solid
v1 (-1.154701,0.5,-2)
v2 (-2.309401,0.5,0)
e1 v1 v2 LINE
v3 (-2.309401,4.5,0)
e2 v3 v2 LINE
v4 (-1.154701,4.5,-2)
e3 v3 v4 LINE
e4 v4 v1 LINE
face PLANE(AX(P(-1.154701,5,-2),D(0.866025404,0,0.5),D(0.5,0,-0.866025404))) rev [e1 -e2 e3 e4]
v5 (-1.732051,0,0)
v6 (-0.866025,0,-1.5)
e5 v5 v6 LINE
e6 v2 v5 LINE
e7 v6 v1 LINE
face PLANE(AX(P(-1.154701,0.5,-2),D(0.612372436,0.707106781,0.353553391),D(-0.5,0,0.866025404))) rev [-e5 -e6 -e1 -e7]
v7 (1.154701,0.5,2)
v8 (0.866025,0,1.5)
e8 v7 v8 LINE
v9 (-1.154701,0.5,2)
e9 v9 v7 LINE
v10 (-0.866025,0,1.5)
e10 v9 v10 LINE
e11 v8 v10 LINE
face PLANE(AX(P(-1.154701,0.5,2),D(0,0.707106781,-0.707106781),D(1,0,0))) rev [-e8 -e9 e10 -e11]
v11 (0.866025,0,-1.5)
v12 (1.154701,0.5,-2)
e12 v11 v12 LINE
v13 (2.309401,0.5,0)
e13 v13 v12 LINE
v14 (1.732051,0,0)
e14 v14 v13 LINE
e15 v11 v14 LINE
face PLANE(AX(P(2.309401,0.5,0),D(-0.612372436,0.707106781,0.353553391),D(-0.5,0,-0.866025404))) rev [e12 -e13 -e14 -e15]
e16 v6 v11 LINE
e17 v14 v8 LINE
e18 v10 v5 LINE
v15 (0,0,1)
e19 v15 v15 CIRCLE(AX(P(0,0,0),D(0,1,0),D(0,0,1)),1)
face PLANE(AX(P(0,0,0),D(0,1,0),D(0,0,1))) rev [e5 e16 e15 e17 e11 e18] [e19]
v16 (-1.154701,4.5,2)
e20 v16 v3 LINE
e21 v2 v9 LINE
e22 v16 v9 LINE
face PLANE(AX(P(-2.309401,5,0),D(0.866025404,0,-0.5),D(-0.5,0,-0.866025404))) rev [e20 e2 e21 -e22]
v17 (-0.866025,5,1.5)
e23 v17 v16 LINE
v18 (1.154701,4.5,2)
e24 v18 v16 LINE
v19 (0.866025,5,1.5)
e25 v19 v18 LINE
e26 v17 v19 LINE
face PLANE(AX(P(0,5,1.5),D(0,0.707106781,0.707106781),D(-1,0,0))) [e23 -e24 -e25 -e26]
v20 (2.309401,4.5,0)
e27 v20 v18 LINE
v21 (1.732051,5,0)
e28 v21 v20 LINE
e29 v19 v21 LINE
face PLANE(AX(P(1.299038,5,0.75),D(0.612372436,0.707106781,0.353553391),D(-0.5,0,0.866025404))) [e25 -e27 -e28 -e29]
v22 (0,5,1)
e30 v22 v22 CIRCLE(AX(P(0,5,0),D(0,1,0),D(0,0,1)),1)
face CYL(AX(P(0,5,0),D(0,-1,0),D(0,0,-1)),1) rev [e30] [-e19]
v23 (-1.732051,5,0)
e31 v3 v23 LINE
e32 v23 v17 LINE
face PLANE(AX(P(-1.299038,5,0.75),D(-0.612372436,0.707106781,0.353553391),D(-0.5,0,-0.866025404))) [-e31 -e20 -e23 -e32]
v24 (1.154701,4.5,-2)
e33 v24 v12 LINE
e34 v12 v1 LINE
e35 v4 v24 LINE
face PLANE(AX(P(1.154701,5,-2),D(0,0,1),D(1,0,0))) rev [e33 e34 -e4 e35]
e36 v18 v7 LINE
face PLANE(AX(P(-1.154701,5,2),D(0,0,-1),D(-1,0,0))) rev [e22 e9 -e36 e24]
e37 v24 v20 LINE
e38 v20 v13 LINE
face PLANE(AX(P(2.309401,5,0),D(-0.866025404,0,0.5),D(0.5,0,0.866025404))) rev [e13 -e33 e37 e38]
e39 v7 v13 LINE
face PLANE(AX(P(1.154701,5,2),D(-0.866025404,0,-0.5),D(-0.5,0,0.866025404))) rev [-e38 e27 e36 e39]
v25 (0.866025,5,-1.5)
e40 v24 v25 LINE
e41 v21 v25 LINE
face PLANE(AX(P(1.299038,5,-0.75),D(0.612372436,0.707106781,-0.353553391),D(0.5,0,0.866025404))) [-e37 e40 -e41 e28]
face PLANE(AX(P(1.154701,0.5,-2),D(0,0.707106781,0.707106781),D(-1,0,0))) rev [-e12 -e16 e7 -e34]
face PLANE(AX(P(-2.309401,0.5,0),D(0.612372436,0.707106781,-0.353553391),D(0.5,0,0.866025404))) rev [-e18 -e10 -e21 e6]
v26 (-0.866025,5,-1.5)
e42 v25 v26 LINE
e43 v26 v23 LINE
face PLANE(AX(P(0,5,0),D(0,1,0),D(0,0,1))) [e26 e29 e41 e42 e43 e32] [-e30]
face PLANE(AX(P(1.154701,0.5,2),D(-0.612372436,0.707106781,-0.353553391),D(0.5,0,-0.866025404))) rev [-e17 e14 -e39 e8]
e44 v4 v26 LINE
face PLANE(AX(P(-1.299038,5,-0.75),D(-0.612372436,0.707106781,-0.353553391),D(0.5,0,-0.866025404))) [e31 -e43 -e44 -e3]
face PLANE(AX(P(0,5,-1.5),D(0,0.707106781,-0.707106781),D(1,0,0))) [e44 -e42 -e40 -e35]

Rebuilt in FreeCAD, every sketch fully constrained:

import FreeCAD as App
import Part
import Sketcher

V = App.Vector
Q = App.Units.Quantity


def edges_at(feature, points):
    """Names of the edges that pass closest to the given points."""
    edges = feature.Shape.Edges
    near = lambda p: min(range(len(edges)), key=lambda i: edges[i].distToShape(Part.Vertex(*p))[0])
    return sorted({f"Edge{near(p) + 1}" for p in points})


def add_polygon(sketch, points):
    """Adds a closed chain of lines whose ends are joined by coincident constraints."""
    first, n = sketch.GeometryCount, len(points)
    for a, b in zip(points, points[1:] + points[:1]):
        sketch.addGeometry(Part.LineSegment(App.Vector(*a, 0), App.Vector(*b, 0)), False)
    for i in range(n):
        sketch.addConstraint(Sketcher.Constraint("Coincident", first + i, 2, first + (i + 1) % n, 1))

doc = App.newDocument("Part")
body = doc.addObject("PartDesign::Body", "Body")

sketch1 = body.newObject("Sketcher::SketchObject", "Sketch")
sketch1.AttachmentSupport = (doc.getObject("XZ_Plane"), [""])
sketch1.MapMode = "FlatFace"
add_polygon(sketch1, [(-2.3, 0), (-1.2, 2), (1.2, 2), (2.3, 0), (1.2, -2), (-1.2, -2)])
sketch1.addGeometry(Part.Circle(V(0, 0, 0), V(0, 0, 1), 1), False)
sketch1.addConstraint(Sketcher.Constraint("Horizontal", 1))
sketch1.addConstraint(Sketcher.Constraint("Horizontal", 4))
sketch1.addConstraint(Sketcher.Constraint("Coincident", 6, 3, -1, 1))
sketch1.addConstraint(Sketcher.Constraint("Symmetric", 0, 2, 3, 2, -1, 1))
sketch1.addConstraint(Sketcher.Constraint("Symmetric", 2, 2, 5, 2, -1, 1))
sketch1.addConstraint(Sketcher.Constraint("PointOnObject", 2, 2, -1))
sketch1.addConstraint(Sketcher.Constraint("Parallel", 2, 5))
sketch1.addConstraint(Sketcher.Constraint("Vertical", 1, 2, 3, 2))
sketch1.addConstraint(Sketcher.Constraint("Diameter", 6, Q("2 mm")))
sketch1.addConstraint(Sketcher.Constraint("Angle", 0, Q("60 deg")))
sketch1.addConstraint(Sketcher.Constraint("DistanceY", -1, 1, 0, 2, Q("2 mm")))
sketch1.addConstraint(Sketcher.Constraint("DistanceX", 1, 1, 1, 2, Q("2.309401 mm")))
pad1 = body.newObject("PartDesign::Pad", "Pad")
pad1.Profile = sketch1
pad1.Length = 5
pad1.Reversed = True
doc.recompute()

chamfer = body.newObject("PartDesign::Chamfer", "Chamfer")
chamfer.Base = (pad1, edges_at(pad1, [
    (0, 5, 2),
    (1.732, 5, 1),
    (1.732, 5, -1),
    (0, 5, -2),
    (-1.732, 5, -1),
    (0, 0, -2),
    (1.732, 0, -1),
    (1.732, 0, 1),
    (0, 0, 2),
    (-1.732, 0, 1),
    (-1.732, 0, -1),
    (-1.732, 5, 1),
]))
chamfer.Size = 0.5

doc.recompute()
